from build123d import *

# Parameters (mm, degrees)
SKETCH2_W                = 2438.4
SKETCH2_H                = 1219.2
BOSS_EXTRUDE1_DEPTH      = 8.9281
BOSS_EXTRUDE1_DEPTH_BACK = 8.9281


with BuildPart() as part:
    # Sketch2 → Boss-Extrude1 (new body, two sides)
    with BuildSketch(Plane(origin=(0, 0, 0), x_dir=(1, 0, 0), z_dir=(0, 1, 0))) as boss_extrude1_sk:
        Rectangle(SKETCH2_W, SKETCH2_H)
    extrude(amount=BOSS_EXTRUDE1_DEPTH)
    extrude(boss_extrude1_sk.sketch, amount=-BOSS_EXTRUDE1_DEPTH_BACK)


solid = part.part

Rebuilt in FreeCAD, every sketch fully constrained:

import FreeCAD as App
import Part
import Sketcher
Q = App.Units.Quantity


def add_polygon(sketch, points):
    """Adds a closed chain of lines whose ends are joined by coincident constraints."""
    first, n = sketch.GeometryCount, len(points)
    for a, b in zip(points, points[1:] + points[:1]):
        sketch.addGeometry(Part.LineSegment(App.Vector(*a, 0), App.Vector(*b, 0)), False)
    for i in range(n):
        sketch.addConstraint(Sketcher.Constraint("Coincident", first + i, 2, first + (i + 1) % n, 1))

doc = App.newDocument("Part")
params = doc.addObject("Spreadsheet::Sheet", "Params")
for row, (alias, value) in enumerate([
    ("sketch1_width", "96 in"),
    ("sketch1_height", "48 in"),
    ("pad1_length", "0.3515 in"),
    ("pad1_length2", "0.3515 in"),
], start=1):
    params.set(f"A{row}", alias)
    params.set(f"B{row}", "=" + value)
    params.setAlias(f"B{row}", alias)

body = doc.addObject("PartDesign::Body", "Body")

# Sketch on XZ plane
sketch1 = body.newObject("Sketcher::SketchObject", "Sketch")
sketch1.AttachmentSupport = (doc.getObject("XZ_Plane"), [""])
sketch1.MapMode = "FlatFace"
add_polygon(sketch1, [(-1219, -610), (-1219, 610), (1219, 610), (1219, -610)])  # lines 0-3
sketch1.addConstraint(Sketcher.Constraint("Vertical", 0))
sketch1.addConstraint(Sketcher.Constraint("Horizontal", 1))
sketch1.addConstraint(Sketcher.Constraint("Vertical", 2))
sketch1.addConstraint(Sketcher.Constraint("Horizontal", 3))
sketch1.addConstraint(Sketcher.Constraint("Symmetric", 0, 2, 2, 2, -1, 1))
sketch1.addConstraint(Sketcher.Constraint("DistanceX", 1, 1, 1, 2, Q("96 in")))
sketch1.addConstraint(Sketcher.Constraint("DistanceY", 0, 1, 0, 2, Q("48 in")))
sketch1.setExpression("Constraints[9]", "Params.sketch1_width")
sketch1.setExpression("Constraints[10]", "Params.sketch1_height")
pad1 = body.newObject("PartDesign::Pad", "Pad")
pad1.Profile = sketch1
pad1.Type = "TwoLengths"
pad1.setExpression("Length", "Params.pad1_length")
pad1.setExpression("Length2", "Params.pad1_length2")
pad1.Reversed = True

doc.recompute()
